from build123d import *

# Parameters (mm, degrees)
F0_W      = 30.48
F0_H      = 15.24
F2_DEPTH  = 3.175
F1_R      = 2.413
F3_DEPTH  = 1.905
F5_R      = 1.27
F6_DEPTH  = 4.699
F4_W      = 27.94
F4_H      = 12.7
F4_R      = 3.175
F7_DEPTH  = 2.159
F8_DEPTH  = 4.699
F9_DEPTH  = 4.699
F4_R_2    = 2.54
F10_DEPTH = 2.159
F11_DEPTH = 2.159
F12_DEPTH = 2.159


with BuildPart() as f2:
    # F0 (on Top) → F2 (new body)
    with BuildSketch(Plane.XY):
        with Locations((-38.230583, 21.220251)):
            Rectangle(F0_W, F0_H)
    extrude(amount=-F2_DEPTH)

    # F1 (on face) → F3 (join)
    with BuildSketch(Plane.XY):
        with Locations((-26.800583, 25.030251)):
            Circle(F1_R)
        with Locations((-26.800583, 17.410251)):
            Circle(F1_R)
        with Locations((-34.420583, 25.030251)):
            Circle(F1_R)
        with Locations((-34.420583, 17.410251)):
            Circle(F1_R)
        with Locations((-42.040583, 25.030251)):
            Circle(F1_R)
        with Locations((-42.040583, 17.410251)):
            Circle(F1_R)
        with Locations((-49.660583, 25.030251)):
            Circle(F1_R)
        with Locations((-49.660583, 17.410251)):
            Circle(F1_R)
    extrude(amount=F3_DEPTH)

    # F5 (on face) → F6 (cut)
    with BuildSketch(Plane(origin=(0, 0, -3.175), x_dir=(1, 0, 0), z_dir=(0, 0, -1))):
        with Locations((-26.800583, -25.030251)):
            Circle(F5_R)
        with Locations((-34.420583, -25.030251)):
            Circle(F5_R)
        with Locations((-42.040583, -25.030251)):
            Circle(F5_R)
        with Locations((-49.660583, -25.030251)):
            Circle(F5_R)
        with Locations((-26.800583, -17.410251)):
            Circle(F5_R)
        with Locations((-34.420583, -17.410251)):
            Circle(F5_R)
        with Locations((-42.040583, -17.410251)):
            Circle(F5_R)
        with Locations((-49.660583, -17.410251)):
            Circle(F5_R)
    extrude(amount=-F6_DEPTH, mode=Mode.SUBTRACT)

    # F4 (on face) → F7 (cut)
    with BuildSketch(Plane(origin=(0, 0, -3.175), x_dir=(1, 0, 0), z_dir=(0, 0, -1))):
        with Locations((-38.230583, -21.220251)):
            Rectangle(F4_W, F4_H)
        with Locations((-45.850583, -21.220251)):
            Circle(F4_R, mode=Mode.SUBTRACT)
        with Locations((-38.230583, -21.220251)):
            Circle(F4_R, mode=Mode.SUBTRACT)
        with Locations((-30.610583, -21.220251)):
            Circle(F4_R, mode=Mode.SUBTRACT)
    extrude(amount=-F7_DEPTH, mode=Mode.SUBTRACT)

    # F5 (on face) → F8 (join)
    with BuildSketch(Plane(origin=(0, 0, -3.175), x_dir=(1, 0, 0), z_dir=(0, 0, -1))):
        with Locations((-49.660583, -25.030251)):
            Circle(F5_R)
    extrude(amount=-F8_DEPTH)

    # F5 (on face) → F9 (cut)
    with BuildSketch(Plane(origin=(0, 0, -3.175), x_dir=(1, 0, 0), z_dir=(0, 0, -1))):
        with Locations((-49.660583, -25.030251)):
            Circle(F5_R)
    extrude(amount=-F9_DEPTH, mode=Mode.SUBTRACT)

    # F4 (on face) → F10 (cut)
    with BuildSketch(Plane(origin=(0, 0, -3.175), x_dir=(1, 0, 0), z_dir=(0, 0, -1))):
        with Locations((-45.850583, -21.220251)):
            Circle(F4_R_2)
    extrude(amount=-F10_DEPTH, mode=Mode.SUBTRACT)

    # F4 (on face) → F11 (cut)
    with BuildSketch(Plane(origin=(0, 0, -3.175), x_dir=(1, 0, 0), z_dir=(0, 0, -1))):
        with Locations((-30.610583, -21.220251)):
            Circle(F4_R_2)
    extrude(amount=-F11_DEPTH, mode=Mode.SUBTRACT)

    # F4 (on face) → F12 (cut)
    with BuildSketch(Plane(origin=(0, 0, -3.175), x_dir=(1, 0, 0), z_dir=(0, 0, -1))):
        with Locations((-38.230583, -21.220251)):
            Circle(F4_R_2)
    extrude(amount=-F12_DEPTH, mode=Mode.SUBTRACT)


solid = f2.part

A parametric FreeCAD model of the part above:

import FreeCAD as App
import Part
import Sketcher

V = App.Vector
Q = App.Units.Quantity

doc = App.newDocument("Part")
body = doc.addObject("PartDesign::Body", "Body")

sketch1 = doc.addObject("Sketcher::SketchObject", "Sketch")
body.addObject(sketch1)
sketch1.AttachmentSupport = (doc.XY_Plane, [""])
sketch1.MapMode = "FlatFace"
sketch1.addGeometry([
    Part.LineSegment(V(-53.470583, 28.840251, 0), V(-53.470583, 13.600251, 0)),
    Part.LineSegment(V(-53.470583, 13.600251, 0), V(-22.990583, 13.600251, 0)),
    Part.LineSegment(V(-22.990583, 13.600251, 0), V(-22.990583, 28.840251, 0)),
    Part.LineSegment(V(-22.990583, 28.840251, 0), V(-53.470583, 28.840251, 0)),
], False)
sketch1.addConstraint([
    Sketcher.Constraint("Coincident", 0, 2, 1, 1),
    Sketcher.Constraint("Coincident", 1, 2, 2, 1),
    Sketcher.Constraint("Coincident", 2, 2, 3, 1),
    Sketcher.Constraint("Coincident", 3, 2, 0, 1),
    Sketcher.Constraint("Vertical", 0),
    Sketcher.Constraint("Horizontal", 1),
    Sketcher.Constraint("Vertical", 2),
    Sketcher.Constraint("Horizontal", 3),
    Sketcher.Constraint("DistanceX", 1, 1, 1, 2, Q("1.2 in")),
    Sketcher.Constraint("DistanceY", 0, 2, 0, 1, Q("0.6 in")),
    Sketcher.Constraint("DistanceY", -1, 1, 0, 2, Q("13.600251 mm")),
    Sketcher.Constraint("DistanceX", 0, 2, -1, 1, Q("53.470583 mm")),
])
pad1 = doc.addObject("PartDesign::Pad", "Pad")
body.addObject(pad1)
pad1.Profile = sketch1
pad1.Length = Q("0.125 in")
pad1.Reversed = True

sketch2 = doc.addObject("Sketcher::SketchObject", "Sketch001")
body.addObject(sketch2)
sketch2.AttachmentSupport = (doc.XY_Plane, [""])
sketch2.MapMode = "FlatFace"
sketch2.addGeometry([
    Part.Circle(V(-26.800583, 25.030251, 0), V(0, 0, 1), 2.413),
    Part.Circle(V(-26.800583, 17.410251, 0), V(0, 0, 1), 2.413),
    Part.Circle(V(-34.420583, 25.030251, 0), V(0, 0, 1), 2.413),
    Part.Circle(V(-34.420583, 17.410251, 0), V(0, 0, 1), 2.413),
    Part.Circle(V(-42.040583, 25.030251, 0), V(0, 0, 1), 2.413),
    Part.Circle(V(-42.040583, 17.410251, 0), V(0, 0, 1), 2.413),
    Part.Circle(V(-49.660583, 25.030251, 0), V(0, 0, 1), 2.413),
    Part.Circle(V(-49.660583, 17.410251, 0), V(0, 0, 1), 2.413),
], False)
sketch2.addConstraint([
    Sketcher.Constraint("Equal", 0, 1),
    Sketcher.Constraint("Equal", 1, 2),
    Sketcher.Constraint("Equal", 2, 3),
    Sketcher.Constraint("Equal", 3, 4),
    Sketcher.Constraint("Equal", 4, 5),
    Sketcher.Constraint("Equal", 5, 6),
    Sketcher.Constraint("Equal", 6, 7),
    Sketcher.Constraint("Horizontal", 0, 3, 2, 3),
    Sketcher.Constraint("Horizontal", 1, 3, 3, 3),
    Sketcher.Constraint("Horizontal", 2, 3, 4, 3),
    Sketcher.Constraint("Horizontal", 3, 3, 5, 3),
    Sketcher.Constraint("Horizontal", 4, 3, 6, 3),
    Sketcher.Constraint("Horizontal", 5, 3, 7, 3),
    Sketcher.Constraint("Vertical", 0, 3, 1, 3),
    Sketcher.Constraint("Vertical", 2, 3, 3, 3),
    Sketcher.Constraint("Vertical", 4, 3, 5, 3),
    Sketcher.Constraint("Vertical", 6, 3, 7, 3),
    Sketcher.Constraint("Diameter", 0, Q("0.19 in")),
    Sketcher.Constraint("DistanceY", 1, 3, 0, 3, Q("0.3 in")),
    Sketcher.Constraint("DistanceX", 2, 3, 0, 3, Q("0.3 in")),
    Sketcher.Constraint("DistanceX", 4, 3, 2, 3, Q("0.3 in")),
    Sketcher.Constraint("DistanceX", 6, 3, 4, 3, Q("0.3 in")),
    Sketcher.Constraint("DistanceY", -1, 1, 0, 3, Q("25.030251 mm")),
    Sketcher.Constraint("DistanceX", 0, 3, -1, 1, Q("26.800583 mm")),
])
pad2 = doc.addObject("PartDesign::Pad", "Pad001")
body.addObject(pad2)
pad2.Profile = sketch2
pad2.Length = Q("0.075 in")

sketch3 = doc.addObject("Sketcher::SketchObject", "Sketch002")
body.addObject(sketch3)
sketch3.AttachmentSupport = (doc.XY_Plane, [""])
sketch3.MapMode = "FlatFace"
sketch3.AttachmentOffset = App.Placement(V(0, 0, -0.125 * 25.4), App.Rotation())
sketch3.addGeometry([
    Part.Circle(V(-26.800583, 25.030251, 0), V(0, 0, 1), 1.27),
    Part.Circle(V(-34.420583, 25.030251, 0), V(0, 0, 1), 1.27),
    Part.Circle(V(-42.040583, 25.030251, 0), V(0, 0, 1), 1.27),
    Part.Circle(V(-49.660583, 25.030251, 0), V(0, 0, 1), 1.27),
    Part.Circle(V(-26.800583, 17.410251, 0), V(0, 0, 1), 1.27),
    Part.Circle(V(-34.420583, 17.410251, 0), V(0, 0, 1), 1.27),
    Part.Circle(V(-42.040583, 17.410251, 0), V(0, 0, 1), 1.27),
    Part.Circle(V(-49.660583, 17.410251, 0), V(0, 0, 1), 1.27),
], False)
sketch3.addConstraint([
    Sketcher.Constraint("Equal", 0, 1),
    Sketcher.Constraint("Equal", 1, 2),
    Sketcher.Constraint("Equal", 2, 3),
    Sketcher.Constraint("Equal", 3, 4),
    Sketcher.Constraint("Equal", 4, 5),
    Sketcher.Constraint("Equal", 5, 6),
    Sketcher.Constraint("Equal", 6, 7),
    Sketcher.Constraint("Horizontal", 0, 3, 1, 3),
    Sketcher.Constraint("Horizontal", 1, 3, 2, 3),
    Sketcher.Constraint("Horizontal", 2, 3, 3, 3),
    Sketcher.Constraint("Horizontal", 4, 3, 5, 3),
    Sketcher.Constraint("Horizontal", 5, 3, 6, 3),
    Sketcher.Constraint("Horizontal", 6, 3, 7, 3),
    Sketcher.Constraint("Vertical", 0, 3, 4, 3),
    Sketcher.Constraint("Vertical", 1, 3, 5, 3),
    Sketcher.Constraint("Vertical", 2, 3, 6, 3),
    Sketcher.Constraint("Vertical", 3, 3, 7, 3),
    Sketcher.Constraint("Diameter", 0, Q("0.1 in")),
    Sketcher.Constraint("DistanceX", 1, 3, 0, 3, Q("0.3 in")),
    Sketcher.Constraint("DistanceX", 2, 3, 1, 3, Q("0.3 in")),
    Sketcher.Constraint("DistanceX", 3, 3, 2, 3, Q("0.3 in")),
    Sketcher.Constraint("DistanceY", 4, 3, 0, 3, Q("0.3 in")),
    Sketcher.Constraint("DistanceY", -1, 1, 0, 3, Q("25.030251 mm")),
    Sketcher.Constraint("DistanceX", 0, 3, -1, 1, Q("26.800583 mm")),
])
pocket1 = doc.addObject("PartDesign::Pocket", "Pocket")
body.addObject(pocket1)
pocket1.Profile = sketch3
pocket1.Length = Q("0.185 in")
pocket1.Reversed = True

sketch4 = doc.addObject("Sketcher::SketchObject", "Sketch003")
body.addObject(sketch4)
sketch4.AttachmentSupport = (doc.XY_Plane, [""])
sketch4.MapMode = "FlatFace"
sketch4.AttachmentOffset = App.Placement(V(0, 0, -0.125 * 25.4), App.Rotation())
sketch4.addGeometry([
    Part.LineSegment(V(-52.200583, 14.870251, 0), V(-52.200583, 27.570251, 0)),
    Part.LineSegment(V(-52.200583, 27.570251, 0), V(-24.260583, 27.570251, 0)),
    Part.LineSegment(V(-24.260583, 27.570251, 0), V(-24.260583, 14.870251, 0)),
    Part.LineSegment(V(-24.260583, 14.870251, 0), V(-52.200583, 14.870251, 0)),
    Part.Circle(V(-45.850583, 21.220251, 0), V(0, 0, 1), 3.175),
    Part.Circle(V(-38.230583, 21.220251, 0), V(0, 0, 1), 3.175),
    Part.Circle(V(-30.610583, 21.220251, 0), V(0, 0, 1), 3.175),
], False)
sketch4.addConstraint([
    Sketcher.Constraint("Coincident", 0, 2, 1, 1),
    Sketcher.Constraint("Coincident", 1, 2, 2, 1),
    Sketcher.Constraint("Coincident", 2, 2, 3, 1),
    Sketcher.Constraint("Coincident", 3, 2, 0, 1),
    Sketcher.Constraint("Vertical", 0),
    Sketcher.Constraint("Horizontal", 1),
    Sketcher.Constraint("Vertical", 2),
    Sketcher.Constraint("Horizontal", 3),
    Sketcher.Constraint("Equal", 4, 5),
    Sketcher.Constraint("Equal", 5, 6),
    Sketcher.Constraint("Horizontal", 4, 3, 5, 3),
    Sketcher.Constraint("Horizontal", 5, 3, 6, 3),
    Sketcher.Constraint("Diameter", 4, Q("0.25 in")),
    Sketcher.Constraint("DistanceX", 1, 1, 1, 2, Q("1.1 in")),
    Sketcher.Constraint("DistanceY", 0, 1, 0, 2, Q("0.5 in")),
    Sketcher.Constraint("DistanceX", 4, 3, 5, 3, Q("0.3 in")),
    Sketcher.Constraint("DistanceX", 5, 3, 6, 3, Q("0.3 in")),
    Sketcher.Constraint("DistanceX", 0, 2, 4, 3, Q("0.25 in")),
    Sketcher.Constraint("DistanceY", 4, 3, 0, 2, Q("0.25 in")),
    Sketcher.Constraint("DistanceY", -1, 1, 4, 3, Q("21.220251 mm")),
    Sketcher.Constraint("DistanceX", 4, 3, -1, 1, Q("45.850583 mm")),
])
pocket2 = doc.addObject("PartDesign::Pocket", "Pocket001")
body.addObject(pocket2)
pocket2.Profile = sketch4
pocket2.Length = Q("0.085 in")
pocket2.Reversed = True

sketch5 = doc.addObject("Sketcher::SketchObject", "Sketch004")
body.addObject(sketch5)
sketch5.AttachmentSupport = (doc.XY_Plane, [""])
sketch5.MapMode = "FlatFace"
sketch5.AttachmentOffset = App.Placement(V(0, 0, -0.125 * 25.4), App.Rotation())
sketch5.addGeometry(Part.Circle(V(-49.660583, 25.030251, 0), V(0, 0, 1), 1.27), False)
sketch5.addConstraint([
    Sketcher.Constraint("Diameter", 0, Q("0.1 in")),
    Sketcher.Constraint("DistanceY", -1, 1, 0, 3, Q("25.030251 mm")),
    Sketcher.Constraint("DistanceX", 0, 3, -1, 1, Q("49.660583 mm")),
])
pad3 = doc.addObject("PartDesign::Pad", "Pad002")
body.addObject(pad3)
pad3.Profile = sketch5
pad3.Length = Q("0.185 in")

sketch6 = doc.addObject("Sketcher::SketchObject", "Sketch005")
body.addObject(sketch6)
sketch6.AttachmentSupport = (doc.XY_Plane, [""])
sketch6.MapMode = "FlatFace"
sketch6.AttachmentOffset = App.Placement(V(0, 0, -0.125 * 25.4), App.Rotation())
sketch6.addGeometry(Part.Circle(V(-49.660583, 25.030251, 0), V(0, 0, 1), 1.27), False)
sketch6.addConstraint([
    Sketcher.Constraint("Diameter", 0, Q("0.1 in")),
    Sketcher.Constraint("DistanceY", -1, 1, 0, 3, Q("25.030251 mm")),
    Sketcher.Constraint("DistanceX", 0, 3, -1, 1, Q("49.660583 mm")),
])
pocket3 = doc.addObject("PartDesign::Pocket", "Pocket002")
body.addObject(pocket3)
pocket3.Profile = sketch6
pocket3.Length = Q("0.185 in")
pocket3.Reversed = True

sketch7 = doc.addObject("Sketcher::SketchObject", "Sketch006")
body.addObject(sketch7)
sketch7.AttachmentSupport = (doc.XY_Plane, [""])
sketch7.MapMode = "FlatFace"
sketch7.AttachmentOffset = App.Placement(V(0, 0, -0.125 * 25.4), App.Rotation())
sketch7.addGeometry(Part.Circle(V(-45.850583, 21.220251, 0), V(0, 0, 1), 2.54), False)
sketch7.addConstraint([
    Sketcher.Constraint("Diameter", 0, Q("0.2 in")),
    Sketcher.Constraint("DistanceY", -1, 1, 0, 3, Q("21.220251 mm")),
    Sketcher.Constraint("DistanceX", 0, 3, -1, 1, Q("45.850583 mm")),
])
pocket4 = doc.addObject("PartDesign::Pocket", "Pocket003")
body.addObject(pocket4)
pocket4.Profile = sketch7
pocket4.Length = Q("0.085 in")
pocket4.Reversed = True

sketch8 = doc.addObject("Sketcher::SketchObject", "Sketch007")
body.addObject(sketch8)
sketch8.AttachmentSupport = (doc.XY_Plane, [""])
sketch8.MapMode = "FlatFace"
sketch8.AttachmentOffset = App.Placement(V(0, 0, -0.125 * 25.4), App.Rotation())
sketch8.addGeometry(Part.Circle(V(-30.610583, 21.220251, 0), V(0, 0, 1), 2.54), False)
sketch8.addConstraint([
    Sketcher.Constraint("Diameter", 0, Q("0.2 in")),
    Sketcher.Constraint("DistanceY", -1, 1, 0, 3, Q("21.220251 mm")),
    Sketcher.Constraint("DistanceX", 0, 3, -1, 1, Q("30.610583 mm")),
])
pocket5 = doc.addObject("PartDesign::Pocket", "Pocket004")
body.addObject(pocket5)
pocket5.Profile = sketch8
pocket5.Length = Q("0.085 in")
pocket5.Reversed = True

sketch9 = doc.addObject("Sketcher::SketchObject", "Sketch008")
body.addObject(sketch9)
sketch9.AttachmentSupport = (doc.XY_Plane, [""])
sketch9.MapMode = "FlatFace"
sketch9.AttachmentOffset = App.Placement(V(0, 0, -0.125 * 25.4), App.Rotation())
sketch9.addGeometry(Part.Circle(V(-38.230583, 21.220251, 0), V(0, 0, 1), 2.54), False)
sketch9.addConstraint([
    Sketcher.Constraint("Diameter", 0, Q("0.2 in")),
    Sketcher.Constraint("DistanceY", -1, 1, 0, 3, Q("21.220251 mm")),
    Sketcher.Constraint("DistanceX", 0, 3, -1, 1, Q("38.230583 mm")),
])
pocket6 = doc.addObject("PartDesign::Pocket", "Pocket005")
body.addObject(pocket6)
pocket6.Profile = sketch9
pocket6.Length = Q("0.085 in")
pocket6.Reversed = True

doc.recompute()
